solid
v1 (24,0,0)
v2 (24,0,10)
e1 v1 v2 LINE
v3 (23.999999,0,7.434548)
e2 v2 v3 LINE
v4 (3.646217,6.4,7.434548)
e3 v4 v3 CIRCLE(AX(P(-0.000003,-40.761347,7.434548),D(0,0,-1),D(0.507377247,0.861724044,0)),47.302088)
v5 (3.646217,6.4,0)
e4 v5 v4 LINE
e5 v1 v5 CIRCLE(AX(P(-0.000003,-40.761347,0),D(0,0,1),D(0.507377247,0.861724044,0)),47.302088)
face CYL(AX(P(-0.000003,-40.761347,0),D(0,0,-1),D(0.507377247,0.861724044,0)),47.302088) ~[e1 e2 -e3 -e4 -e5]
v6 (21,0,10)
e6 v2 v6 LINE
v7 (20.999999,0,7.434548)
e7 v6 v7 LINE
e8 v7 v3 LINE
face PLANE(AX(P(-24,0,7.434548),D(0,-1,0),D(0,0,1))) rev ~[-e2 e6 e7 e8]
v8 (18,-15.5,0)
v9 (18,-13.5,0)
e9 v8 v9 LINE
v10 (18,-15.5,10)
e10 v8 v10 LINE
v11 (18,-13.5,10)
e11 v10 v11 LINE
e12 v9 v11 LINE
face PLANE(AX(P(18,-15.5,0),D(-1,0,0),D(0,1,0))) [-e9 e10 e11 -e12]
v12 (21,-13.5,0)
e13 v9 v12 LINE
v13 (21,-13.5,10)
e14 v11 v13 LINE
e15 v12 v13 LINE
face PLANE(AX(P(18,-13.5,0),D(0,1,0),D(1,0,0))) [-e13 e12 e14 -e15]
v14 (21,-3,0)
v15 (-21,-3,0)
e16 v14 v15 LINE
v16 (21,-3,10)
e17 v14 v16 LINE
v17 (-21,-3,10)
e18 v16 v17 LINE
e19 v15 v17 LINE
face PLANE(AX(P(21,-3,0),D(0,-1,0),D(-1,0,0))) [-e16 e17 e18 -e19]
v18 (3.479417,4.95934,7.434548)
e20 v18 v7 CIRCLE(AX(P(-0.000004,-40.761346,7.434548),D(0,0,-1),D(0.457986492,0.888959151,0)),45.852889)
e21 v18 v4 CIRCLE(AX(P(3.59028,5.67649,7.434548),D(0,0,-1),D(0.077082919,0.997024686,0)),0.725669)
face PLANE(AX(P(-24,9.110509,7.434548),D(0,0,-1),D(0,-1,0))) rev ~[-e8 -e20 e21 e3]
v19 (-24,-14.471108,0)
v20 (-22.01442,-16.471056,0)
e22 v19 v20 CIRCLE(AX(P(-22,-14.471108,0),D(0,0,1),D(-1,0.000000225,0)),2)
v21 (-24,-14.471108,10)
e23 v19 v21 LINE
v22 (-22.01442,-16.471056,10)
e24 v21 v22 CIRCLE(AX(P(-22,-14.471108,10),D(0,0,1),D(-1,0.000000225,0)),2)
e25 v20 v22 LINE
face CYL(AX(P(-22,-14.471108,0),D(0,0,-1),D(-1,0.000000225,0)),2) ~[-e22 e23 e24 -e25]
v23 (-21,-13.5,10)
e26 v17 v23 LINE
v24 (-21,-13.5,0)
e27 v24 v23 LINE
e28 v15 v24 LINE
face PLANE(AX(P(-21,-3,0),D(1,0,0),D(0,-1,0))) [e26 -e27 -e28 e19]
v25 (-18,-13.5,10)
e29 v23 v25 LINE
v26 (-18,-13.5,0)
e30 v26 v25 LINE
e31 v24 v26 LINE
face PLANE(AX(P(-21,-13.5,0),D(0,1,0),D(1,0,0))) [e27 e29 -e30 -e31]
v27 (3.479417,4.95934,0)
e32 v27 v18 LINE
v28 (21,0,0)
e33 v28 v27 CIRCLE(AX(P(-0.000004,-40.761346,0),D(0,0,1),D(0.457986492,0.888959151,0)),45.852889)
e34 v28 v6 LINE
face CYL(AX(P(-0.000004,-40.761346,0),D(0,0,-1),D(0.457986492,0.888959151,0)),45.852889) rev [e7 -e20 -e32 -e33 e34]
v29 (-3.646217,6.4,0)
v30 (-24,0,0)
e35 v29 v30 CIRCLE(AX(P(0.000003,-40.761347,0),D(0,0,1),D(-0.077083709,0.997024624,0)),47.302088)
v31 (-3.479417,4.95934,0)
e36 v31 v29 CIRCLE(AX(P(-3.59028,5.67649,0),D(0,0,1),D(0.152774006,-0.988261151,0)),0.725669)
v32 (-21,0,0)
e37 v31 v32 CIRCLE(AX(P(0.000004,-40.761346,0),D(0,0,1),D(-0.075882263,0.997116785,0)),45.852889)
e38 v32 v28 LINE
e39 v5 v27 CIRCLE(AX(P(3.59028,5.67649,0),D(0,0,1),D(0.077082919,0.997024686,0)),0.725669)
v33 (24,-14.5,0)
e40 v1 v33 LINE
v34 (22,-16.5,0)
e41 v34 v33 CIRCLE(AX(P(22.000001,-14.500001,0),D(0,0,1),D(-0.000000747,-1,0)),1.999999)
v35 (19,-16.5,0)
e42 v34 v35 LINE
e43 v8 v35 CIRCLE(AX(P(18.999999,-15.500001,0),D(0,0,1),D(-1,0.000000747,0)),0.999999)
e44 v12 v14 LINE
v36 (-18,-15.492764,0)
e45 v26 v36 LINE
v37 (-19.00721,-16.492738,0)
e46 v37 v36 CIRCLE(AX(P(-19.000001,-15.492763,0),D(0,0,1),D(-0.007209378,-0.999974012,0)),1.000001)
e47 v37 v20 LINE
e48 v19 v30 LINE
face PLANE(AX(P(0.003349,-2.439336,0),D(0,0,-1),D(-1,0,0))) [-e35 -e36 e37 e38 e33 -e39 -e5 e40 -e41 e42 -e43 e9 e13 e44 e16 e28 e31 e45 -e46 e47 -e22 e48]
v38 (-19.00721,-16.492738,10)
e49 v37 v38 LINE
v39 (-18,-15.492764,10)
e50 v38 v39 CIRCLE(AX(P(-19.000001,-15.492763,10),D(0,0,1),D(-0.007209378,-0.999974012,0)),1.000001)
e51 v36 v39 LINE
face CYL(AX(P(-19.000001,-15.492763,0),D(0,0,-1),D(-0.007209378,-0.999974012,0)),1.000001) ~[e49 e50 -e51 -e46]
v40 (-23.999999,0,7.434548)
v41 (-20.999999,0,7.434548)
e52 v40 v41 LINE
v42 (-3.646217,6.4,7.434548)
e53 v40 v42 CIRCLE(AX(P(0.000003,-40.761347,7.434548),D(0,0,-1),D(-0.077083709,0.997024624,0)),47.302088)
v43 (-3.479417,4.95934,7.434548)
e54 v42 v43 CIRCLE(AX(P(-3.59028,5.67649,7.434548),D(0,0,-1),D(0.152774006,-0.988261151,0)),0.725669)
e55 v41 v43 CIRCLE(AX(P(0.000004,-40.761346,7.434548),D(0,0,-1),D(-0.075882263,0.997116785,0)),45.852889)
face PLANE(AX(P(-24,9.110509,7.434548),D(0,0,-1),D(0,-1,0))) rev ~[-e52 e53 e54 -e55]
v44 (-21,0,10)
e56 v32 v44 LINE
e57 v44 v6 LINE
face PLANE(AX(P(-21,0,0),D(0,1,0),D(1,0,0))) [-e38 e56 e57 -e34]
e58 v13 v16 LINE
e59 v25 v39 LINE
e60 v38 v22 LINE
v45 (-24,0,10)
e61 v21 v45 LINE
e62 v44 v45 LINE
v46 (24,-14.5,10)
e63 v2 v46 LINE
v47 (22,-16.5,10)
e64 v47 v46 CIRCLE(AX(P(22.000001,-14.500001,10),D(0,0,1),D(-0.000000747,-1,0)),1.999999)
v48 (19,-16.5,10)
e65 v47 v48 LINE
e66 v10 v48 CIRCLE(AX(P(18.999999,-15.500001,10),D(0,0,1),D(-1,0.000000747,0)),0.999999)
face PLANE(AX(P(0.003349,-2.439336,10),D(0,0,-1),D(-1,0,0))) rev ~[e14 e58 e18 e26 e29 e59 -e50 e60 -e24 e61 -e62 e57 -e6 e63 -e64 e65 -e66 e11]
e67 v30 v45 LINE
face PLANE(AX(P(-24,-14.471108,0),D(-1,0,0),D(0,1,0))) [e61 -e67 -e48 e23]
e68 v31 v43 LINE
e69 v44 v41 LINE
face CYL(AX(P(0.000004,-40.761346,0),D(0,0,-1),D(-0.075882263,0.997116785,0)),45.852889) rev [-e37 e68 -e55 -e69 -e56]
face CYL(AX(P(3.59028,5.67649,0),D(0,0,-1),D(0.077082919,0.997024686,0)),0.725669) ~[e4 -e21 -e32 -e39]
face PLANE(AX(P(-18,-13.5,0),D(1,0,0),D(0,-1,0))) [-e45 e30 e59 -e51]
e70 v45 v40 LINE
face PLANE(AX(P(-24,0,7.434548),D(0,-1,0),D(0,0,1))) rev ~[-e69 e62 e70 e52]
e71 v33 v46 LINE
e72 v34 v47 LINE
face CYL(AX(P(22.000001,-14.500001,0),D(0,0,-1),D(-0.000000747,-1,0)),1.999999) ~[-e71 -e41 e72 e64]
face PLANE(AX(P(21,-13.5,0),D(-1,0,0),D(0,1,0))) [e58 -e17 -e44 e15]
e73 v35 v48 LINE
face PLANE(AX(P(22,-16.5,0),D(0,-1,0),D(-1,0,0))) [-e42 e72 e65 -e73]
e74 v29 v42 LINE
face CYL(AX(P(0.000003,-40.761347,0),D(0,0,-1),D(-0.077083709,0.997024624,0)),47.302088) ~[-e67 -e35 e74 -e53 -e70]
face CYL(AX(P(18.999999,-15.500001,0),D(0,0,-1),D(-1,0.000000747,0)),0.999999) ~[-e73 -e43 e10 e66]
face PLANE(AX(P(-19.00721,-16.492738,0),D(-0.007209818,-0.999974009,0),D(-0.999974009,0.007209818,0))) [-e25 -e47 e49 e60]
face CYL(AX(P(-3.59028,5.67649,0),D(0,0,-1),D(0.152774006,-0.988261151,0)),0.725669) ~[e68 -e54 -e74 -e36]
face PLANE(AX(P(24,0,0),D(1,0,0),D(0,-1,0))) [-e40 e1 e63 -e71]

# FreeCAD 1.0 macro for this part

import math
import FreeCAD as App
import Part
import Sketcher
from FreeCAD import Vector


def add_polygon(sketch, points):
    """Adds a closed chain of lines whose ends are joined by coincident constraints."""
    first, n = sketch.GeometryCount, len(points)
    for a, b in zip(points, points[1:] + points[:1]):
        sketch.addGeometry(Part.LineSegment(App.Vector(*a, 0), App.Vector(*b, 0)), False)
    for i in range(n):
        sketch.addConstraint(Sketcher.Constraint("Coincident", first + i, 2, first + (i + 1) % n, 1))

doc = App.newDocument("Part")
body = doc.addObject("PartDesign::Body", "Body")

# Sketch on XY plane
sketch1 = doc.addObject("Sketcher::SketchObject", "Sketch")
body.addObject(sketch1)
sketch1.AttachmentSupport = (doc.XY_Plane, [""])
sketch1.MapMode = "FlatFace"
sketch1.addGeometry([
    Part.LineSegment(Vector(24, -14.5, 0), Vector(24, 0, 0)),  # 0
    Part.ArcOfCircle(Part.Circle(Vector(0, -40.8, 0), Vector(0, 0, 1), 47.3), math.radians(60), math.radians(86)),  # 1
    Part.ArcOfCircle(Part.Circle(Vector(3.6, 5.7, 0), Vector(0, 0, 1), 0.7), math.radians(86), math.radians(261)),  # 2
    Part.ArcOfCircle(Part.Circle(Vector(0, -40.8, 0), Vector(0, 0, 1), 45.9), math.radians(63), math.radians(86)),  # 3
    Part.LineSegment(Vector(21, 0, 0), Vector(-21, 0, 0)),  # 4
    Part.ArcOfCircle(Part.Circle(Vector(0, -40.8, 0), Vector(0, 0, 1), 45.9), math.radians(94), math.radians(117)),  # 5
    Part.ArcOfCircle(Part.Circle(Vector(-3.6, 5.7, 0), Vector(0, 0, 1), 0.7), math.radians(-81), math.radians(94)),  # 6
    Part.ArcOfCircle(Part.Circle(Vector(0, -40.8, 0), Vector(0, 0, 1), 47.3), math.radians(94), math.radians(120)),  # 7
    Part.LineSegment(Vector(-24, 0, 0), Vector(-24, -14.5, 0)),  # 8
    Part.ArcOfCircle(Part.Circle(Vector(-22, -14.5, 0), Vector(0, 0, 1), 2), math.radians(180), math.radians(270)),  # 9
    Part.LineSegment(Vector(-22, -16.5, 0), Vector(-19, -16.5, 0)),  # 10
    Part.ArcOfCircle(Part.Circle(Vector(-19, -15.5, 0), Vector(0, 0, 1), 1), math.radians(-90), math.radians(0)),  # 11
    Part.LineSegment(Vector(-18, -15.5, 0), Vector(-18, -13.5, 0)),  # 12
    Part.LineSegment(Vector(-18, -13.5, 0), Vector(-21, -13.5, 0)),  # 13
    Part.LineSegment(Vector(-21, -13.5, 0), Vector(-21, -3, 0)),  # 14
    Part.LineSegment(Vector(-21, -3, 0), Vector(21, -3, 0)),  # 15
    Part.LineSegment(Vector(21, -3, 0), Vector(21, -13.5, 0)),  # 16
    Part.LineSegment(Vector(21, -13.5, 0), Vector(18, -13.5, 0)),  # 17
    Part.LineSegment(Vector(18, -13.5, 0), Vector(18, -15.5, 0)),  # 18
    Part.ArcOfCircle(Part.Circle(Vector(19, -15.5, 0), Vector(0, 0, 1), 1), math.radians(180), math.radians(270)),  # 19
    Part.LineSegment(Vector(19, -16.5, 0), Vector(22, -16.5, 0)),  # 20
    Part.ArcOfCircle(Part.Circle(Vector(22, -14.5, 0), Vector(0, 0, 1), 2), math.radians(-90), math.radians(0)),  # 21
], False)
sketch1.addConstraint([
    Sketcher.Constraint("Coincident", 0, 2, 1, 1),
    Sketcher.Constraint("Tangent", 1, 2, 2, 1),
    Sketcher.Constraint("Coincident", 2, 2, 3, 2),
    Sketcher.Constraint("Coincident", 3, 1, 4, 1),
    Sketcher.Constraint("Coincident", 4, 2, 5, 2),
    Sketcher.Constraint("Coincident", 5, 1, 6, 1),
    Sketcher.Constraint("Tangent", 6, 2, 7, 1),
    Sketcher.Constraint("Coincident", 7, 2, 8, 1),
    Sketcher.Constraint("Tangent", 8, 2, 9, 1),
    Sketcher.Constraint("Tangent", 9, 2, 10, 1),
    Sketcher.Constraint("Tangent", 10, 2, 11, 1),
    Sketcher.Constraint("Tangent", 11, 2, 12, 1),
    Sketcher.Constraint("Coincident", 12, 2, 13, 1),
    Sketcher.Constraint("Coincident", 13, 2, 14, 1),
    Sketcher.Constraint("Coincident", 14, 2, 15, 1),
    Sketcher.Constraint("Coincident", 15, 2, 16, 1),
    Sketcher.Constraint("Coincident", 16, 2, 17, 1),
    Sketcher.Constraint("Coincident", 17, 2, 18, 1),
    Sketcher.Constraint("Tangent", 18, 2, 19, 1),
    Sketcher.Constraint("Tangent", 19, 2, 20, 1),
    Sketcher.Constraint("Tangent", 20, 2, 21, 1),
    Sketcher.Constraint("Tangent", 21, 2, 0, 1),
    Sketcher.Constraint("Vertical", 0),
    Sketcher.Constraint("Horizontal", 4),
    Sketcher.Constraint("Vertical", 8),
    Sketcher.Constraint("Vertical", 12),
    Sketcher.Constraint("Horizontal", 13),
    Sketcher.Constraint("Vertical", 14),
    Sketcher.Constraint("Horizontal", 15),
    Sketcher.Constraint("Vertical", 16),
    Sketcher.Constraint("Horizontal", 17),
    Sketcher.Constraint("Vertical", 18),
    Sketcher.Constraint("Horizontal", 20),
    Sketcher.Constraint("Coincident", 3, 3, 1, 3),
    Sketcher.Constraint("Coincident", 5, 3, 1, 3),
    Sketcher.Constraint("Coincident", 7, 3, 1, 3),
    Sketcher.Constraint("Equal", 3, 5),
    Sketcher.Constraint("Equal", 2, 6),
    Sketcher.Constraint("Equal", 1, 7),
    Sketcher.Constraint("Equal", 11, 19),
    Sketcher.Constraint("Equal", 9, 21),
    Sketcher.Constraint("Symmetric", 3, 1, 4, 2, -1, 1),
    Sketcher.Constraint("Symmetric", 0, 2, 7, 2, -1, 1),
    Sketcher.Constraint("Symmetric", 13, 2, 16, 2, -2),
    Sketcher.Constraint("Horizontal", 2, 3, 6, 3),
    Sketcher.Constraint("Vertical", 4, 2, 13, 2),
    Sketcher.Constraint("Equal", 13, 17),
    Sketcher.Constraint("Equal", 17, 20),
    Sketcher.Constraint("Radius", 9, 2.0),
    Sketcher.Constraint("Radius", 11, 1.000001),
    Sketcher.Constraint("DistanceX", 4, 2, 4, 1, 42.0),
    Sketcher.Constraint("DistanceX", 13, 2, 13, 1, 3.0),
    Sketcher.Constraint("DistanceY", 18, 2, 18, 1, 2.0),
    Sketcher.Constraint("DistanceY", 0, 1, 0, 2, 14.5),
    Sketcher.Constraint("DistanceY", 14, 1, 14, 2, 10.5),
    Sketcher.Constraint("DistanceY", -1, 1, 1, 2, 6.4),
    Sketcher.Constraint("Radius", 1, 47.302088),
    Sketcher.Constraint("Radius", 2, 0.725669),
    Sketcher.Constraint("DistanceY", 9, 3, 6, 3, 20.147599),
    Sketcher.Constraint("Distance", 10, 3.007288),
])
pad1 = doc.addObject("PartDesign::Pad", "Pad")
body.addObject(pad1)
pad1.Profile = sketch1
pad1.Length = 10

# Sketch on YZ plane
sketch2 = doc.addObject("Sketcher::SketchObject", "Sketch001")
body.addObject(sketch2)
sketch2.AttachmentSupport = (doc.YZ_Plane, [""])
sketch2.MapMode = "FlatFace"
sketch2.AttachmentOffset = App.Placement(Vector(0, 0, -24), App.Rotation())
add_polygon(sketch2, [(9, 25), (9, 7), (0, 7), (0, 25)])  # lines 0-3
sketch2.addConstraint([
    Sketcher.Constraint("Vertical", 0),
    Sketcher.Constraint("Horizontal", 1),
    Sketcher.Constraint("Vertical", 2),
    Sketcher.Constraint("Horizontal", 3),
    Sketcher.Constraint("PointOnObject", 1, 2, -2),
    Sketcher.Constraint("DistanceX", 1, 2, 1, 1, 9.110509),
    Sketcher.Constraint("DistanceY", 0, 2, 0, 1, 17.177114),
    Sketcher.Constraint("DistanceY", -1, 1, 0, 2, 7.434548),
])
pocket1 = doc.addObject("PartDesign::Pocket", "Pocket")
body.addObject(pocket1)
pocket1.Profile = sketch2
pocket1.Type = "ThroughAll"
pocket1.Reversed = True

doc.recompute()
